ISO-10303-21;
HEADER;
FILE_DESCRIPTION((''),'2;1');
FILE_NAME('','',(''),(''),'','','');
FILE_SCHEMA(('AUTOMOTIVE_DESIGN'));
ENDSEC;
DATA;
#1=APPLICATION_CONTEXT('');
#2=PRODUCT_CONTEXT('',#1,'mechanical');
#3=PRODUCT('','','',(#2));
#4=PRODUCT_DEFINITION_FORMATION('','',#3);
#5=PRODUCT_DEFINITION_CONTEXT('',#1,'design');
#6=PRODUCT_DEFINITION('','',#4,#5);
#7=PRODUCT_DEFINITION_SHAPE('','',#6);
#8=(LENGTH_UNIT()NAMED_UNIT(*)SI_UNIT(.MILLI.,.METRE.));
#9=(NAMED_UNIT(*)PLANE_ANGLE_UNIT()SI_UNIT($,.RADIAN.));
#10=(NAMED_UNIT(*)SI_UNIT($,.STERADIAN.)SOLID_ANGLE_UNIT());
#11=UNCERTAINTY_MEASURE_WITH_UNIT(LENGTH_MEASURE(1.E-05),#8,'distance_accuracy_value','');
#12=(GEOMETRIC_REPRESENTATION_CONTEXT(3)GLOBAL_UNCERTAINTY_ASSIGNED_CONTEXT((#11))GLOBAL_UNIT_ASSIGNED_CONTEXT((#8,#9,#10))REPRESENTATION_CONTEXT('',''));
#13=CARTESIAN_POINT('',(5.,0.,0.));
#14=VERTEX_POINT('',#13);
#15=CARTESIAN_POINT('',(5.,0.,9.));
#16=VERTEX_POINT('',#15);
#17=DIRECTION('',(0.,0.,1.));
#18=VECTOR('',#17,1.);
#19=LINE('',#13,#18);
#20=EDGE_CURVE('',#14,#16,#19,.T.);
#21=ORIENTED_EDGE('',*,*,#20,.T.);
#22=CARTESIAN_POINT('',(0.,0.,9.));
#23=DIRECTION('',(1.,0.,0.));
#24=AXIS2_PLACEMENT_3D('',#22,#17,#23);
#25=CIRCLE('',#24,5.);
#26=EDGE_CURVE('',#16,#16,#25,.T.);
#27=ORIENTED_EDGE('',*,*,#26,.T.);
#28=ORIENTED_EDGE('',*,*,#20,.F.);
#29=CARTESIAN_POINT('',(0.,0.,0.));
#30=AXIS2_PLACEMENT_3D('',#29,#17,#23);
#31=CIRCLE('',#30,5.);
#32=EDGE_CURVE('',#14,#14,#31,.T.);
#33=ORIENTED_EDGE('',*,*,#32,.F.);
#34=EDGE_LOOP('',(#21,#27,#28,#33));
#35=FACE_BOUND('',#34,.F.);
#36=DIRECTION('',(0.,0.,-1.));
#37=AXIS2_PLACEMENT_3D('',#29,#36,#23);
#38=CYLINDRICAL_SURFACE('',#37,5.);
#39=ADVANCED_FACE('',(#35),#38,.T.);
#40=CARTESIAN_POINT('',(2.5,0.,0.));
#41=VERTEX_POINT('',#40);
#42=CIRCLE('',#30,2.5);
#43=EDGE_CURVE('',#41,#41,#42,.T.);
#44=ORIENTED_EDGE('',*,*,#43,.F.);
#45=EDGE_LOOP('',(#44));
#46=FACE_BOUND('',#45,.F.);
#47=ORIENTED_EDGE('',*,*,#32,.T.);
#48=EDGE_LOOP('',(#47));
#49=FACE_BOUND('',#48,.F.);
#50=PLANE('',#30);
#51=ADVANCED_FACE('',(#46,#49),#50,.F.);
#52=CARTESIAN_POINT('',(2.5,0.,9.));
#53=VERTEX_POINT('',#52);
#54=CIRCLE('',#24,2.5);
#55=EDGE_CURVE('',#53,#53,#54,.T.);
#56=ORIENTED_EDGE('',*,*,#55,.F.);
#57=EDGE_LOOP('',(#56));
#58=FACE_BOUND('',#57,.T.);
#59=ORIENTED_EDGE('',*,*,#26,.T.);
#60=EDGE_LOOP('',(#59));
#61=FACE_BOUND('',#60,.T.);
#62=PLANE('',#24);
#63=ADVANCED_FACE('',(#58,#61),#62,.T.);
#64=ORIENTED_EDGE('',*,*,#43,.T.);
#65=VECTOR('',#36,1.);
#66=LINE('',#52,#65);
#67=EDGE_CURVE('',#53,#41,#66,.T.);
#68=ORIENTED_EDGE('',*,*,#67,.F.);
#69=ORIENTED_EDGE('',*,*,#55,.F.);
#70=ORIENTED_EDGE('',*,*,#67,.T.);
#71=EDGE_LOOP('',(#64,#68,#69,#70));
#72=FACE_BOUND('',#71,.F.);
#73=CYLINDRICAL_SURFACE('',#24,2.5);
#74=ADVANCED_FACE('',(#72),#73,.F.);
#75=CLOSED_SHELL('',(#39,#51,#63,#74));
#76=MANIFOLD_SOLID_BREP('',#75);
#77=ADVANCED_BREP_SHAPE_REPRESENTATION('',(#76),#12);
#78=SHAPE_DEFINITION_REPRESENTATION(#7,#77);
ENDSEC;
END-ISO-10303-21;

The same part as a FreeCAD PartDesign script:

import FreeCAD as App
import Part
import Sketcher
from FreeCAD import Vector
Q = App.Units.Quantity

doc = App.newDocument("Part")
params = doc.addObject("Spreadsheet::Sheet", "Params")
for row, (alias, value) in enumerate([
    ("sketch1_diameter", "10 mm"),
    ("pad1_length", "9 mm"),
    ("sketch2_diameter", "5 mm"),
    ("pocket1_length", "13 mm"),
], start=1):
    params.set(f"A{row}", alias)
    params.set(f"B{row}", "=" + value)
    params.setAlias(f"B{row}", alias)

body = doc.addObject("PartDesign::Body", "Body")

sketch1 = body.newObject("Sketcher::SketchObject", "Sketch")
sketch1.AttachmentSupport = (doc.getObject("XY_Plane"), [""])
sketch1.MapMode = "FlatFace"
sketch1.addGeometry(Part.Circle(Vector(0, 0, 0), Vector(0, 0, 1), 5), False)
sketch1.addConstraint([
    Sketcher.Constraint("Coincident", 0, 3, -1, 1),
    Sketcher.Constraint("Diameter", 0, Q("10 mm")),
])
sketch1.setExpression("Constraints[1]", "Params.sketch1_diameter")
pad1 = body.newObject("PartDesign::Pad", "Pad")
pad1.Profile = sketch1
pad1.setExpression("Length", "Params.pad1_length")

sketch2 = body.newObject("Sketcher::SketchObject", "Sketch001")
sketch2.AttachmentSupport = (doc.getObject("XY_Plane"), [""])
sketch2.MapMode = "FlatFace"
sketch2.AttachmentOffset = App.Placement(Vector(0, 0, 9), App.Rotation())
sketch2.addGeometry(Part.Circle(Vector(0, 0, 0), Vector(0, 0, 1), 2.5), False)
sketch2.addConstraint([
    Sketcher.Constraint("Coincident", 0, 3, -1, 1),
    Sketcher.Constraint("Diameter", 0, Q("5 mm")),
])
sketch2.setExpression("Constraints[1]", "Params.sketch2_diameter")
pocket1 = body.newObject("PartDesign::Pocket", "Pocket")
pocket1.Profile = sketch2
pocket1.setExpression("Length", "Params.pocket1_length")

doc.recompute()
